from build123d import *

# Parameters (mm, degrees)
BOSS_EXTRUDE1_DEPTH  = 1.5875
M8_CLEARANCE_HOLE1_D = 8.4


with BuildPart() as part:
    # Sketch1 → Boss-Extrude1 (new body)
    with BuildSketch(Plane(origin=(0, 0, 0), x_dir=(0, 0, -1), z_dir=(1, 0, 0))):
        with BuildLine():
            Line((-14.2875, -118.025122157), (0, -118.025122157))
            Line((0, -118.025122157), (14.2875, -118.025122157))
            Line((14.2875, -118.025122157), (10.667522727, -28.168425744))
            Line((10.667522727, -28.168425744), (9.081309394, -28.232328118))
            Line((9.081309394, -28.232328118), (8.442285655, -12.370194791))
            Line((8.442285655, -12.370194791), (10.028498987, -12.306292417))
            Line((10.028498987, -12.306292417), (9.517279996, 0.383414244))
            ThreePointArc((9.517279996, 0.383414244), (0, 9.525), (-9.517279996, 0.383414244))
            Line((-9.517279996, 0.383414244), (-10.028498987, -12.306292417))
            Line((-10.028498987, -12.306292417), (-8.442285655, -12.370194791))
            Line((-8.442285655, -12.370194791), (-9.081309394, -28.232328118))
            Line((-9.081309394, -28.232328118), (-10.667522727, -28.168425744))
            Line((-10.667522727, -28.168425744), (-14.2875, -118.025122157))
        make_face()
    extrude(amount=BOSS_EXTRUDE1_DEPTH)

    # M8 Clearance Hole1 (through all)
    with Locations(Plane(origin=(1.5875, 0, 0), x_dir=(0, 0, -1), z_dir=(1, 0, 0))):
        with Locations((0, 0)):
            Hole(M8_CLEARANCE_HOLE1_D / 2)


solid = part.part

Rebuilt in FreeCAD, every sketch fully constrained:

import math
import FreeCAD as App
import Part
import Sketcher
from FreeCAD import Vector
Q = App.Units.Quantity

doc = App.newDocument("Part")
body = doc.addObject("PartDesign::Body", "Body")

# Sketch on YZ plane
sketch1 = doc.addObject("Sketcher::SketchObject", "Sketch")
body.addObject(sketch1)
sketch1.AttachmentSupport = (doc.YZ_Plane, [""])
sketch1.MapMode = "FlatFace"
sketch1.addGeometry([
    Part.LineSegment(Vector(-118.025122, 14.2875, 0), Vector(-118.025122, -14.2875, 0)),  # 0
    Part.LineSegment(Vector(-118.025122, -14.2875, 0), Vector(-28.168426, -10.667523, 0)),  # 1
    Part.LineSegment(Vector(-28.168426, -10.667523, 0), Vector(-28.232328, -9.081309, 0)),  # 2
    Part.LineSegment(Vector(-28.232328, -9.081309, 0), Vector(-12.370195, -8.442286, 0)),  # 3
    Part.LineSegment(Vector(-12.370195, -8.442286, 0), Vector(-12.306292, -10.028499, 0)),  # 4
    Part.LineSegment(Vector(-12.306292, -10.028499, 0), Vector(0.383414, -9.51728, 0)),  # 5
    Part.ArcOfCircle(Part.Circle(Vector(0, 0, 0), Vector(0, 0, 1), 9.525), math.radians(-87.693023), math.radians(87.693023)),  # 6
    Part.LineSegment(Vector(0.383414, 9.51728, 0), Vector(-12.306292, 10.028499, 0)),  # 7
    Part.LineSegment(Vector(-12.306292, 10.028499, 0), Vector(-12.370195, 8.442286, 0)),  # 8
    Part.LineSegment(Vector(-12.370195, 8.442286, 0), Vector(-28.232328, 9.081309, 0)),  # 9
    Part.LineSegment(Vector(-28.232328, 9.081309, 0), Vector(-28.168426, 10.667523, 0)),  # 10
    Part.LineSegment(Vector(-28.168426, 10.667523, 0), Vector(-118.025122, 14.2875, 0)),  # 11
], False)
sketch1.addConstraint([
    Sketcher.Constraint("Coincident", 0, 2, 1, 1),
    Sketcher.Constraint("Coincident", 1, 2, 2, 1),
    Sketcher.Constraint("Coincident", 2, 2, 3, 1),
    Sketcher.Constraint("Coincident", 3, 2, 4, 1),
    Sketcher.Constraint("Coincident", 4, 2, 5, 1),
    Sketcher.Constraint("Tangent", 5, 2, 6, 1),
    Sketcher.Constraint("Tangent", 6, 2, 7, 1),
    Sketcher.Constraint("Coincident", 7, 2, 8, 1),
    Sketcher.Constraint("Coincident", 8, 2, 9, 1),
    Sketcher.Constraint("Coincident", 9, 2, 10, 1),
    Sketcher.Constraint("Coincident", 10, 2, 11, 1),
    Sketcher.Constraint("Coincident", 11, 2, 0, 1),
    Sketcher.Constraint("Vertical", 0),
    Sketcher.Constraint("Coincident", 6, 3, -1, 1),
    Sketcher.Constraint("Symmetric", 4, 2, 7, 2, -1),
    Sketcher.Constraint("Symmetric", 3, 2, 8, 2, -1),
    Sketcher.Constraint("Symmetric", 2, 2, 9, 2, -1),
    Sketcher.Constraint("Symmetric", 1, 2, 10, 2, -1),
    Sketcher.Constraint("Perpendicular", 1, 2),
    Sketcher.Constraint("Perpendicular", 2, 3),
    Sketcher.Constraint("Perpendicular", 3, 4),
    Sketcher.Constraint("Perpendicular", 4, 5),
    Sketcher.Constraint("Perpendicular", 10, 11),
    Sketcher.Constraint("Equal", 2, 4),
    Sketcher.Constraint("Radius", 6, Q("0.375 in")),
    Sketcher.Constraint("Distance", 5, Q("0.5 in")),
    Sketcher.Constraint("DistanceY", 0, 2, 0, 1, Q("1.125 in")),
    Sketcher.Constraint("Distance", 2, Q("0.0625 in")),
    Sketcher.Constraint("Distance", 3, Q("0.625 in")),
    Sketcher.Constraint("DistanceY", 4, 2, -1, 1, Q("10.028499 mm")),
])
pad1 = doc.addObject("PartDesign::Pad", "Pad")
body.addObject(pad1)
pad1.Profile = sketch1
pad1.Length = Q("0.0625 in")

# Sketch on YZ plane
sketch2 = doc.addObject("Sketcher::SketchObject", "Sketch001")
body.addObject(sketch2)
sketch2.AttachmentSupport = (doc.YZ_Plane, [""])
sketch2.MapMode = "FlatFace"
sketch2.AttachmentOffset = App.Placement(Vector(0, 0, 0.0625 * 25.4), App.Rotation())
sketch2.addGeometry(Part.Circle(Vector(0, 0, 0), Vector(0, 0, 1), 4.2), False)
sketch2.addConstraint([
    Sketcher.Constraint("Coincident", 0, 3, -1, 1),
    Sketcher.Constraint("Diameter", 0, Q("8.4 mm")),
])
doc.recompute()
hole = doc.addObject("PartDesign::Hole", "Hole")
body.addObject(hole)
hole.Profile = sketch2
hole.ThreadType = "None"
hole.Diameter = 8.4
hole.DepthType = "ThroughAll"

doc.recompute()
